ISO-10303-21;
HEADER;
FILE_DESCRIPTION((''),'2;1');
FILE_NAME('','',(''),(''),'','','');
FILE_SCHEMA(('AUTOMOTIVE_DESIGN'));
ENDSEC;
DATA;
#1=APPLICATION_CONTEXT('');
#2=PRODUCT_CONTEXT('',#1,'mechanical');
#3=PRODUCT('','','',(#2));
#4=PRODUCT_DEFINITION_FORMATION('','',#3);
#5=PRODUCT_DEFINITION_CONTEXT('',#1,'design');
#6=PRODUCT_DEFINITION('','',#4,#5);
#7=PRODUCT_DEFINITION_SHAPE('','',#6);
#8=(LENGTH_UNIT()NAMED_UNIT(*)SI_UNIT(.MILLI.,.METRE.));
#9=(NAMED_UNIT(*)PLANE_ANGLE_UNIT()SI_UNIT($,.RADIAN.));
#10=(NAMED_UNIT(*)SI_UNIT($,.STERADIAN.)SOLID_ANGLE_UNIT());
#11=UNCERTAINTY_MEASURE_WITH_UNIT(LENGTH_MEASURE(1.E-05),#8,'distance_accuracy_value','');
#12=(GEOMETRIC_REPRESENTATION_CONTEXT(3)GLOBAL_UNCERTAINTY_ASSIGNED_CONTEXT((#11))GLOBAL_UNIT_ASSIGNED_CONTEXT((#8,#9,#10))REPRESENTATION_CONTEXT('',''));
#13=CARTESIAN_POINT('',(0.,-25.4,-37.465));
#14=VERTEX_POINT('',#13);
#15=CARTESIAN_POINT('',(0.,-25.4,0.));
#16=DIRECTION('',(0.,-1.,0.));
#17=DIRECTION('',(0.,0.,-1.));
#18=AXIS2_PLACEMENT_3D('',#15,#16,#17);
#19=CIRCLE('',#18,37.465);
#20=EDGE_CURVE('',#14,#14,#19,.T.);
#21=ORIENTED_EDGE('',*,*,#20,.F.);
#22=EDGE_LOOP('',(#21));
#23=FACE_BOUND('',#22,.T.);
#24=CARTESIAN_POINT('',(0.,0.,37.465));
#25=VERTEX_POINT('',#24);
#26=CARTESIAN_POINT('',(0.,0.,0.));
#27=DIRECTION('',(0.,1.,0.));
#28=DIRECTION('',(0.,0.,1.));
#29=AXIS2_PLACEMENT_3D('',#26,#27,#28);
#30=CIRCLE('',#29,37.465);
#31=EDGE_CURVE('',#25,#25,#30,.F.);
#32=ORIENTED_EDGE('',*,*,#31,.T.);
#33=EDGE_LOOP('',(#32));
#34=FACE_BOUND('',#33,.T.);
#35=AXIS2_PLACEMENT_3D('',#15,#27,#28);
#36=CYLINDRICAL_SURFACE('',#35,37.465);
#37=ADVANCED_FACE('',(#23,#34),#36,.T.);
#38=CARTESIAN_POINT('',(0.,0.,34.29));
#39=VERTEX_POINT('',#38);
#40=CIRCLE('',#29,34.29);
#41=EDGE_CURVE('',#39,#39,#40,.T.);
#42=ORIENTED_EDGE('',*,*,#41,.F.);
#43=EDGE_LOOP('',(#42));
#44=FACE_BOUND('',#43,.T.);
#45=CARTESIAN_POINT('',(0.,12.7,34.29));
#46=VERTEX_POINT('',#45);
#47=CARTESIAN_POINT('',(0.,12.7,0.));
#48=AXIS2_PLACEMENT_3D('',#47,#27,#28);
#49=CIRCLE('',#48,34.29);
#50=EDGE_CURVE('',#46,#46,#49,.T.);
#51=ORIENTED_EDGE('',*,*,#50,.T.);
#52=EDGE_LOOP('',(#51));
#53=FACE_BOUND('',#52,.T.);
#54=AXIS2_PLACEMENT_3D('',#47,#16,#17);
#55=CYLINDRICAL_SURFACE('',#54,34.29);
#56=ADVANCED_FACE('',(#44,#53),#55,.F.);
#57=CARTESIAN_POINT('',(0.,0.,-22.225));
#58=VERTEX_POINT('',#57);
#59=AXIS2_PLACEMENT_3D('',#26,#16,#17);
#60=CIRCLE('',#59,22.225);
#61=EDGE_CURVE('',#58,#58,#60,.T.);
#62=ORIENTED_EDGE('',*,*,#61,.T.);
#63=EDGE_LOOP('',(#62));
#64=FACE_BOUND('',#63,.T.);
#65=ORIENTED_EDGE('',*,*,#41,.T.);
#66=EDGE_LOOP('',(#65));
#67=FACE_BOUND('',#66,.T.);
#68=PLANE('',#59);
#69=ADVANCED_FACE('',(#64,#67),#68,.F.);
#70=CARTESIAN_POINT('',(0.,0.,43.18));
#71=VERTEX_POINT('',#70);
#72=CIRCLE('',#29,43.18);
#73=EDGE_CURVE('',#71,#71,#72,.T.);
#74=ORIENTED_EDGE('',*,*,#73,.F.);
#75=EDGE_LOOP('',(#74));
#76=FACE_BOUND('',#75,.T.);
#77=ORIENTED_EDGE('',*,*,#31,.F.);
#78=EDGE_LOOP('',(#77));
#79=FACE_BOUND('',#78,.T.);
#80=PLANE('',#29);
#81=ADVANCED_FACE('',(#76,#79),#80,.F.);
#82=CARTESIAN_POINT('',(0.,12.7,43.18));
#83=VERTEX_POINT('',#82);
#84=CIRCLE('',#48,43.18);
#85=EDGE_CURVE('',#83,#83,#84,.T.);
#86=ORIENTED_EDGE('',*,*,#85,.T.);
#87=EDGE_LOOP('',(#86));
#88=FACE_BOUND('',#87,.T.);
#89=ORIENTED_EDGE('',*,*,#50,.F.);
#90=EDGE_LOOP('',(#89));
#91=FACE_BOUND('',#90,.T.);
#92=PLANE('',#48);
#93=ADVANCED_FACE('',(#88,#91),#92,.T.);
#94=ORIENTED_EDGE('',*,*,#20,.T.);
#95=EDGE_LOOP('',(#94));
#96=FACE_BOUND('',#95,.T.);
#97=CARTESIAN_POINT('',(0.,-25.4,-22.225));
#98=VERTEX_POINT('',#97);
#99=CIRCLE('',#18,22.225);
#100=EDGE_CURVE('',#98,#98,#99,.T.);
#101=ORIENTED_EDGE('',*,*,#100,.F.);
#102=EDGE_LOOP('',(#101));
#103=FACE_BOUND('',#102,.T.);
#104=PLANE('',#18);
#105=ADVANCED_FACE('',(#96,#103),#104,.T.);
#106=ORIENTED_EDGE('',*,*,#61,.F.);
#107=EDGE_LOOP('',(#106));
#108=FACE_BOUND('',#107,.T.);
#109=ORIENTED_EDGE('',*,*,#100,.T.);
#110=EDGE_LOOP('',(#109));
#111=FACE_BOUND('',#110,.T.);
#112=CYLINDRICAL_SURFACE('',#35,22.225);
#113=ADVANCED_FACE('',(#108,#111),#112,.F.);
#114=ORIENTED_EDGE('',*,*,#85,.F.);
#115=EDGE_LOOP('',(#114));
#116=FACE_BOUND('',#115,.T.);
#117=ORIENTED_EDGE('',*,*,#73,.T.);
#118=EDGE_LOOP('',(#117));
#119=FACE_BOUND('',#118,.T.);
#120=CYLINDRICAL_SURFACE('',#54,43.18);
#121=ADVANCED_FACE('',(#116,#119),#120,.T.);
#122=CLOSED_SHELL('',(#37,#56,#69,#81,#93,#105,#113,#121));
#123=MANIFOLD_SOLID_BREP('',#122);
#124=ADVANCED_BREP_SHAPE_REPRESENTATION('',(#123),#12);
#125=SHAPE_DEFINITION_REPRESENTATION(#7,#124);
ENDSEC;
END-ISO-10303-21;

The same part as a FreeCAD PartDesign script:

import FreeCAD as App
import Part
import Sketcher
from FreeCAD import Vector
Q = App.Units.Quantity

doc = App.newDocument("Part")
body = doc.addObject("PartDesign::Body", "Body")

# Sketch on XZ plane
sketch1 = body.newObject("Sketcher::SketchObject", "Sketch")
sketch1.AttachmentSupport = (doc.getObject("XZ_Plane"), [""])
sketch1.MapMode = "FlatFace"
sketch1.addGeometry(Part.Circle(Vector(0, 0, 0), Vector(0, 0, 1), 43), False)
sketch1.addGeometry(Part.Circle(Vector(0, 0, 0), Vector(0, 0, 1), 34), False)
sketch1.addConstraint(Sketcher.Constraint("Coincident", 0, 3, -1, 1))
sketch1.addConstraint(Sketcher.Constraint("Coincident", 1, 3, -1, 1))
sketch1.addConstraint(Sketcher.Constraint("Diameter", 0, Q("3.4 in")))
sketch1.addConstraint(Sketcher.Constraint("Diameter", 1, Q("2.7 in")))
pad1 = body.newObject("PartDesign::Pad", "Pad")
pad1.Profile = sketch1
pad1.Length = Q("0.5 in")
pad1.Reversed = True

# Sketch on XZ plane
sketch2 = body.newObject("Sketcher::SketchObject", "Sketch001")
sketch2.AttachmentSupport = (doc.getObject("XZ_Plane"), [""])
sketch2.MapMode = "FlatFace"
sketch2.addGeometry(Part.Circle(Vector(0, 0, 0), Vector(0, 0, 1), 37), False)
sketch2.addGeometry(Part.Circle(Vector(0, 0, 0), Vector(0, 0, 1), 22), False)
sketch2.addConstraint(Sketcher.Constraint("Coincident", 0, 3, -1, 1))
sketch2.addConstraint(Sketcher.Constraint("Coincident", 1, 3, -1, 1))
sketch2.addConstraint(Sketcher.Constraint("Diameter", 0, Q("2.95 in")))
sketch2.addConstraint(Sketcher.Constraint("Diameter", 1, Q("1.75 in")))
pad2 = body.newObject("PartDesign::Pad", "Pad001")
pad2.Profile = sketch2
pad2.Length = Q("1 in")

doc.recompute()
